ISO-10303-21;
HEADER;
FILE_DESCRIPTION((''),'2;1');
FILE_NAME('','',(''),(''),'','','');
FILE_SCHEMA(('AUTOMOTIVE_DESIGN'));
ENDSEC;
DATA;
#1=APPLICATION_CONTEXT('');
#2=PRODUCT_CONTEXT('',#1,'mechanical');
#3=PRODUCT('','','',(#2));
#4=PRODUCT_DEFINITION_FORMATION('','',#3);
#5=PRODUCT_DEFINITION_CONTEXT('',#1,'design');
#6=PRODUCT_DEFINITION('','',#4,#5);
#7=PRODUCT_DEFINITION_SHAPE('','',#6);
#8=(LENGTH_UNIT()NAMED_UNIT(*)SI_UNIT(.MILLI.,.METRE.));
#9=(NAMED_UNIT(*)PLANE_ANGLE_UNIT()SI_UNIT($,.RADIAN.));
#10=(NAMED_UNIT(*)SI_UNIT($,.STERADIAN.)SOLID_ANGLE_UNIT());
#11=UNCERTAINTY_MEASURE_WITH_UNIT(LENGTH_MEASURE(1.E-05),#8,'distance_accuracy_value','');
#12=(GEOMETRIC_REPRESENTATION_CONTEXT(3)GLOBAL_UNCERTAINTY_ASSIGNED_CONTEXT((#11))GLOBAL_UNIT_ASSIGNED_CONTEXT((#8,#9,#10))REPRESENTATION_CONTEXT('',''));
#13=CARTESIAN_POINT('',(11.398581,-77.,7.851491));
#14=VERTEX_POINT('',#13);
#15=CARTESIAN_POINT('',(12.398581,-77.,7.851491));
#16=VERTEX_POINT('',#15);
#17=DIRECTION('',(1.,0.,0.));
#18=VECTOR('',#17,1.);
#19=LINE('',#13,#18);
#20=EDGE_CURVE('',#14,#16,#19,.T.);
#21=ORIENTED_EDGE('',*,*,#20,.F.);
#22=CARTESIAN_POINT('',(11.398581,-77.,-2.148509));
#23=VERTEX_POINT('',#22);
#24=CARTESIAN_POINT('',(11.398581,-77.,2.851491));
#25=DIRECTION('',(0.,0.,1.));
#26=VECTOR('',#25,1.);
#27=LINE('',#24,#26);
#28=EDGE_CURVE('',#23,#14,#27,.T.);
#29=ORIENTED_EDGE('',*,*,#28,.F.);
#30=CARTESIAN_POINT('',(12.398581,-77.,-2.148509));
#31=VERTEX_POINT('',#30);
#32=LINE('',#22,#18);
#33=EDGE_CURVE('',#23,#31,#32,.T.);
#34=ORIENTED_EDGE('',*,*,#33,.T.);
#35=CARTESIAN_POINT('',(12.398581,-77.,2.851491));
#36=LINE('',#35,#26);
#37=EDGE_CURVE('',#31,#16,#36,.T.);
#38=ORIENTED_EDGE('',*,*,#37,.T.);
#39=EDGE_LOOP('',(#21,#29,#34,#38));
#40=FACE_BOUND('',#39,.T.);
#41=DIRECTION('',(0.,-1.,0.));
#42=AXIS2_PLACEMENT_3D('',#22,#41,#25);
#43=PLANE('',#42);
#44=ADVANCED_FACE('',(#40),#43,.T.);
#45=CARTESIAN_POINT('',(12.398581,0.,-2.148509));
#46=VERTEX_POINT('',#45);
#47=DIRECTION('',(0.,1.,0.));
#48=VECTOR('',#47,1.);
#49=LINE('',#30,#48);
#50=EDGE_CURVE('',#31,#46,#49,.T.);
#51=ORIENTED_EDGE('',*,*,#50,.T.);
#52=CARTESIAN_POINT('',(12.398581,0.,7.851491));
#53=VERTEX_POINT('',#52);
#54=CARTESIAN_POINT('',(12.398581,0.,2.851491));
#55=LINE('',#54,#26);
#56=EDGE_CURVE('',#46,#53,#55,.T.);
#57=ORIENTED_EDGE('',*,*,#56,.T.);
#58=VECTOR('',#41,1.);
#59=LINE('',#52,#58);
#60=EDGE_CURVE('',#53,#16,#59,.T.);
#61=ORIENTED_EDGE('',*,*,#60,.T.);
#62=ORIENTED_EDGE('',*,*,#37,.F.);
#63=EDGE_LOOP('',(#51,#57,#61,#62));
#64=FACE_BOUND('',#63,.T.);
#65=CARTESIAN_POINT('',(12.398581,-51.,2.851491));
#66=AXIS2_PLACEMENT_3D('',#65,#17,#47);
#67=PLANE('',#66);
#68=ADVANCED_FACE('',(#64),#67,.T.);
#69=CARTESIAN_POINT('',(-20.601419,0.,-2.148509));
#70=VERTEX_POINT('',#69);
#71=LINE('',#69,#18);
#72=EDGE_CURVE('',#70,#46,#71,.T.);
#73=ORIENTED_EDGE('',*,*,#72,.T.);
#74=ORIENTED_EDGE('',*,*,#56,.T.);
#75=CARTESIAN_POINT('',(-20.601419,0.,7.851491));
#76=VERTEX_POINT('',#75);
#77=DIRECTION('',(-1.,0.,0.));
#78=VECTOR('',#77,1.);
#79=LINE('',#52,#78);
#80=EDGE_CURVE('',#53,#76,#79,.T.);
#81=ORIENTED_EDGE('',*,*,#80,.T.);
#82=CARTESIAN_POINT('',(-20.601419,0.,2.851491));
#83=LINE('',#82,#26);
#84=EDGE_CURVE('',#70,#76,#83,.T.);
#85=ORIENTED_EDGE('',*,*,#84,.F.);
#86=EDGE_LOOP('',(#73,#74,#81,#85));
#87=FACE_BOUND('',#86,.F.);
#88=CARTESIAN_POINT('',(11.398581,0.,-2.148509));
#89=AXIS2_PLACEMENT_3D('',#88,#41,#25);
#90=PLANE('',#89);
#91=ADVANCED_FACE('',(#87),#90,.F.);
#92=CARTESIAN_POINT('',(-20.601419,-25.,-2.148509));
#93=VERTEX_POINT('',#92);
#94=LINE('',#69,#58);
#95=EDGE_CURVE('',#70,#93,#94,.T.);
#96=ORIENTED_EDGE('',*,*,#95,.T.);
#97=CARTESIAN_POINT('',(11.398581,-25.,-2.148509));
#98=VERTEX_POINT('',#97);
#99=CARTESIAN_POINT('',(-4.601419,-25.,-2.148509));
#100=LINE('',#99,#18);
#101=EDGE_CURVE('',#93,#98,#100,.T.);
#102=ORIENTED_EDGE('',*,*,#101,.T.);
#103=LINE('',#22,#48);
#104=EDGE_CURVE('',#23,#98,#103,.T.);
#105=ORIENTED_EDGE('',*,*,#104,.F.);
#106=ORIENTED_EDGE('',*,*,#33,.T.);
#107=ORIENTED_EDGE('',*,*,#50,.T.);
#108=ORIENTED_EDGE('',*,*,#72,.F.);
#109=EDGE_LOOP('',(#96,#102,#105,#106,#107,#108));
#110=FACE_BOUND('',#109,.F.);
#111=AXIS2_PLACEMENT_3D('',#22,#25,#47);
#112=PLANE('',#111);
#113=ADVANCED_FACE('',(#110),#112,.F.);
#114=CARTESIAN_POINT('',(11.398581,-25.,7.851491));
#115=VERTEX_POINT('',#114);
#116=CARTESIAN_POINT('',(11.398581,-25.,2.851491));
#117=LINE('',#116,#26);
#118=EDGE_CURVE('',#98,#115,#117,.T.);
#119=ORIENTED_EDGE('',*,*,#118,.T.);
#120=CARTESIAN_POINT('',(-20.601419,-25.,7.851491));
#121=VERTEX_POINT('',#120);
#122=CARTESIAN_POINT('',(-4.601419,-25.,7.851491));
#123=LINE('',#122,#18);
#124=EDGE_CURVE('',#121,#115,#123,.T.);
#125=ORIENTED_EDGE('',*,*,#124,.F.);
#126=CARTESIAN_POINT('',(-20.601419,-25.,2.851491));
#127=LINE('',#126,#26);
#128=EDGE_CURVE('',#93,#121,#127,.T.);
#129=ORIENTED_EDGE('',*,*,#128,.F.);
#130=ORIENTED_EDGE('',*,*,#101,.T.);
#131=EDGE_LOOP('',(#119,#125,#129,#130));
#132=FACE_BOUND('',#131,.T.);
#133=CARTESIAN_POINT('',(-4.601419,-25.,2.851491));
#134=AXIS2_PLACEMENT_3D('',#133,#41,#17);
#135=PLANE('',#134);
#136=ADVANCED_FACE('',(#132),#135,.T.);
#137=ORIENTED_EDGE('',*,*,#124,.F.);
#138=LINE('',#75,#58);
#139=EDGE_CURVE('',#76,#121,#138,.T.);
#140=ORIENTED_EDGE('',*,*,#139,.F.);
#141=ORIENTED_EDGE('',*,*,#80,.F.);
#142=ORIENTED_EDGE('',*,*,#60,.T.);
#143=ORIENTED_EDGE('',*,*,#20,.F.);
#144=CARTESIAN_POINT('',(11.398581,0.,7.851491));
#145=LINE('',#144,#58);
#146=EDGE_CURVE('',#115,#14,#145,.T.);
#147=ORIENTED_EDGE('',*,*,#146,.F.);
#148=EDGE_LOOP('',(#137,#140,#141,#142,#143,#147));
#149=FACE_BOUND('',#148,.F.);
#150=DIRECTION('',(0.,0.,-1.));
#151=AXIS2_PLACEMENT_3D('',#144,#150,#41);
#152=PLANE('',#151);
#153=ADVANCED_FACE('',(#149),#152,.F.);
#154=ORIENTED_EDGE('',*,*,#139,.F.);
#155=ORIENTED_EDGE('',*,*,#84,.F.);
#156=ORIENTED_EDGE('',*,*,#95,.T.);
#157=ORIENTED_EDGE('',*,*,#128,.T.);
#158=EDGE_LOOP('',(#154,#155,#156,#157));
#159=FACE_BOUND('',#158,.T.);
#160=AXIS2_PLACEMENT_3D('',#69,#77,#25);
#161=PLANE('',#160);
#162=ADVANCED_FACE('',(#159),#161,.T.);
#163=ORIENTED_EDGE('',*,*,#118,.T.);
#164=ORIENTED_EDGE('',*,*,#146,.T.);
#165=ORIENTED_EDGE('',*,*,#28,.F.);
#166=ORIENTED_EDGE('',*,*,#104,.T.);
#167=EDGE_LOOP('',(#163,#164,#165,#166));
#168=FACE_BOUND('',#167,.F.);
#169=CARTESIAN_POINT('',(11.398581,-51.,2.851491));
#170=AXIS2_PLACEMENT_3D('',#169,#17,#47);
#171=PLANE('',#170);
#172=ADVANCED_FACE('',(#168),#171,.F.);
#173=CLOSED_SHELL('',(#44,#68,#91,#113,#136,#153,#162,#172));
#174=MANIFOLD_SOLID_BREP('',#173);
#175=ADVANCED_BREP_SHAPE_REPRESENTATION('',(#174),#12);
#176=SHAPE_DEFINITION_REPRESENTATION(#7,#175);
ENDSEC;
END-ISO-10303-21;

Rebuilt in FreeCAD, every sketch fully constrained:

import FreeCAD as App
import Part
import Sketcher


def add_polygon(sketch, points):
    """Adds a closed chain of lines whose ends are joined by coincident constraints."""
    first, n = sketch.GeometryCount, len(points)
    for a, b in zip(points, points[1:] + points[:1]):
        sketch.addGeometry(Part.LineSegment(App.Vector(*a, 0), App.Vector(*b, 0)), False)
    for i in range(n):
        sketch.addConstraint(Sketcher.Constraint("Coincident", first + i, 2, first + (i + 1) % n, 1))

doc = App.newDocument("Part")
body = doc.addObject("PartDesign::Body", "Body")

sketch1 = body.newObject("Sketcher::SketchObject", "Sketch")
sketch1.AttachmentSupport = (doc.getObject("XZ_Plane"), [""])
sketch1.MapMode = "FlatFace"
add_polygon(sketch1, [(-21, 8), (-21, -2), (11, -2), (11, 8)])
sketch1.addConstraint([
    Sketcher.Constraint("Vertical", 0),
    Sketcher.Constraint("Horizontal", 1),
    Sketcher.Constraint("Vertical", 2),
    Sketcher.Constraint("Horizontal", 3),
    Sketcher.Constraint("DistanceX", 1, 1, 1, 2, 32.0),
    Sketcher.Constraint("DistanceY", 0, 2, 0, 1, 10.0),
    Sketcher.Constraint("DistanceX", 0, 2, -1, 1, 20.601419),
    Sketcher.Constraint("DistanceY", 0, 2, -1, 1, 2.148509),
])
pad1 = body.newObject("PartDesign::Pad", "Pad")
pad1.Profile = sketch1
pad1.Length = 25

sketch2 = body.newObject("Sketcher::SketchObject", "Sketch001")
sketch2.AttachmentSupport = (doc.getObject("YZ_Plane"), [""])
sketch2.MapMode = "FlatFace"
sketch2.AttachmentOffset = App.Placement(App.Vector(0, 0, 11.398581), App.Rotation())
add_polygon(sketch2, [(-77, 8), (-77, -2), (0, -2), (0, 8)])
sketch2.addConstraint([
    Sketcher.Constraint("Vertical", 0),
    Sketcher.Constraint("Horizontal", 1),
    Sketcher.Constraint("Vertical", 2),
    Sketcher.Constraint("Horizontal", 3),
    Sketcher.Constraint("PointOnObject", 1, 2, -2),
    Sketcher.Constraint("DistanceX", 1, 1, 1, 2, 77.0),
    Sketcher.Constraint("DistanceY", 0, 2, 0, 1, 10.0),
    Sketcher.Constraint("DistanceY", 0, 2, -1, 1, 2.148509),
])
pad2 = body.newObject("PartDesign::Pad", "Pad001")
pad2.Profile = sketch2
pad2.Length = 1

doc.recompute()
